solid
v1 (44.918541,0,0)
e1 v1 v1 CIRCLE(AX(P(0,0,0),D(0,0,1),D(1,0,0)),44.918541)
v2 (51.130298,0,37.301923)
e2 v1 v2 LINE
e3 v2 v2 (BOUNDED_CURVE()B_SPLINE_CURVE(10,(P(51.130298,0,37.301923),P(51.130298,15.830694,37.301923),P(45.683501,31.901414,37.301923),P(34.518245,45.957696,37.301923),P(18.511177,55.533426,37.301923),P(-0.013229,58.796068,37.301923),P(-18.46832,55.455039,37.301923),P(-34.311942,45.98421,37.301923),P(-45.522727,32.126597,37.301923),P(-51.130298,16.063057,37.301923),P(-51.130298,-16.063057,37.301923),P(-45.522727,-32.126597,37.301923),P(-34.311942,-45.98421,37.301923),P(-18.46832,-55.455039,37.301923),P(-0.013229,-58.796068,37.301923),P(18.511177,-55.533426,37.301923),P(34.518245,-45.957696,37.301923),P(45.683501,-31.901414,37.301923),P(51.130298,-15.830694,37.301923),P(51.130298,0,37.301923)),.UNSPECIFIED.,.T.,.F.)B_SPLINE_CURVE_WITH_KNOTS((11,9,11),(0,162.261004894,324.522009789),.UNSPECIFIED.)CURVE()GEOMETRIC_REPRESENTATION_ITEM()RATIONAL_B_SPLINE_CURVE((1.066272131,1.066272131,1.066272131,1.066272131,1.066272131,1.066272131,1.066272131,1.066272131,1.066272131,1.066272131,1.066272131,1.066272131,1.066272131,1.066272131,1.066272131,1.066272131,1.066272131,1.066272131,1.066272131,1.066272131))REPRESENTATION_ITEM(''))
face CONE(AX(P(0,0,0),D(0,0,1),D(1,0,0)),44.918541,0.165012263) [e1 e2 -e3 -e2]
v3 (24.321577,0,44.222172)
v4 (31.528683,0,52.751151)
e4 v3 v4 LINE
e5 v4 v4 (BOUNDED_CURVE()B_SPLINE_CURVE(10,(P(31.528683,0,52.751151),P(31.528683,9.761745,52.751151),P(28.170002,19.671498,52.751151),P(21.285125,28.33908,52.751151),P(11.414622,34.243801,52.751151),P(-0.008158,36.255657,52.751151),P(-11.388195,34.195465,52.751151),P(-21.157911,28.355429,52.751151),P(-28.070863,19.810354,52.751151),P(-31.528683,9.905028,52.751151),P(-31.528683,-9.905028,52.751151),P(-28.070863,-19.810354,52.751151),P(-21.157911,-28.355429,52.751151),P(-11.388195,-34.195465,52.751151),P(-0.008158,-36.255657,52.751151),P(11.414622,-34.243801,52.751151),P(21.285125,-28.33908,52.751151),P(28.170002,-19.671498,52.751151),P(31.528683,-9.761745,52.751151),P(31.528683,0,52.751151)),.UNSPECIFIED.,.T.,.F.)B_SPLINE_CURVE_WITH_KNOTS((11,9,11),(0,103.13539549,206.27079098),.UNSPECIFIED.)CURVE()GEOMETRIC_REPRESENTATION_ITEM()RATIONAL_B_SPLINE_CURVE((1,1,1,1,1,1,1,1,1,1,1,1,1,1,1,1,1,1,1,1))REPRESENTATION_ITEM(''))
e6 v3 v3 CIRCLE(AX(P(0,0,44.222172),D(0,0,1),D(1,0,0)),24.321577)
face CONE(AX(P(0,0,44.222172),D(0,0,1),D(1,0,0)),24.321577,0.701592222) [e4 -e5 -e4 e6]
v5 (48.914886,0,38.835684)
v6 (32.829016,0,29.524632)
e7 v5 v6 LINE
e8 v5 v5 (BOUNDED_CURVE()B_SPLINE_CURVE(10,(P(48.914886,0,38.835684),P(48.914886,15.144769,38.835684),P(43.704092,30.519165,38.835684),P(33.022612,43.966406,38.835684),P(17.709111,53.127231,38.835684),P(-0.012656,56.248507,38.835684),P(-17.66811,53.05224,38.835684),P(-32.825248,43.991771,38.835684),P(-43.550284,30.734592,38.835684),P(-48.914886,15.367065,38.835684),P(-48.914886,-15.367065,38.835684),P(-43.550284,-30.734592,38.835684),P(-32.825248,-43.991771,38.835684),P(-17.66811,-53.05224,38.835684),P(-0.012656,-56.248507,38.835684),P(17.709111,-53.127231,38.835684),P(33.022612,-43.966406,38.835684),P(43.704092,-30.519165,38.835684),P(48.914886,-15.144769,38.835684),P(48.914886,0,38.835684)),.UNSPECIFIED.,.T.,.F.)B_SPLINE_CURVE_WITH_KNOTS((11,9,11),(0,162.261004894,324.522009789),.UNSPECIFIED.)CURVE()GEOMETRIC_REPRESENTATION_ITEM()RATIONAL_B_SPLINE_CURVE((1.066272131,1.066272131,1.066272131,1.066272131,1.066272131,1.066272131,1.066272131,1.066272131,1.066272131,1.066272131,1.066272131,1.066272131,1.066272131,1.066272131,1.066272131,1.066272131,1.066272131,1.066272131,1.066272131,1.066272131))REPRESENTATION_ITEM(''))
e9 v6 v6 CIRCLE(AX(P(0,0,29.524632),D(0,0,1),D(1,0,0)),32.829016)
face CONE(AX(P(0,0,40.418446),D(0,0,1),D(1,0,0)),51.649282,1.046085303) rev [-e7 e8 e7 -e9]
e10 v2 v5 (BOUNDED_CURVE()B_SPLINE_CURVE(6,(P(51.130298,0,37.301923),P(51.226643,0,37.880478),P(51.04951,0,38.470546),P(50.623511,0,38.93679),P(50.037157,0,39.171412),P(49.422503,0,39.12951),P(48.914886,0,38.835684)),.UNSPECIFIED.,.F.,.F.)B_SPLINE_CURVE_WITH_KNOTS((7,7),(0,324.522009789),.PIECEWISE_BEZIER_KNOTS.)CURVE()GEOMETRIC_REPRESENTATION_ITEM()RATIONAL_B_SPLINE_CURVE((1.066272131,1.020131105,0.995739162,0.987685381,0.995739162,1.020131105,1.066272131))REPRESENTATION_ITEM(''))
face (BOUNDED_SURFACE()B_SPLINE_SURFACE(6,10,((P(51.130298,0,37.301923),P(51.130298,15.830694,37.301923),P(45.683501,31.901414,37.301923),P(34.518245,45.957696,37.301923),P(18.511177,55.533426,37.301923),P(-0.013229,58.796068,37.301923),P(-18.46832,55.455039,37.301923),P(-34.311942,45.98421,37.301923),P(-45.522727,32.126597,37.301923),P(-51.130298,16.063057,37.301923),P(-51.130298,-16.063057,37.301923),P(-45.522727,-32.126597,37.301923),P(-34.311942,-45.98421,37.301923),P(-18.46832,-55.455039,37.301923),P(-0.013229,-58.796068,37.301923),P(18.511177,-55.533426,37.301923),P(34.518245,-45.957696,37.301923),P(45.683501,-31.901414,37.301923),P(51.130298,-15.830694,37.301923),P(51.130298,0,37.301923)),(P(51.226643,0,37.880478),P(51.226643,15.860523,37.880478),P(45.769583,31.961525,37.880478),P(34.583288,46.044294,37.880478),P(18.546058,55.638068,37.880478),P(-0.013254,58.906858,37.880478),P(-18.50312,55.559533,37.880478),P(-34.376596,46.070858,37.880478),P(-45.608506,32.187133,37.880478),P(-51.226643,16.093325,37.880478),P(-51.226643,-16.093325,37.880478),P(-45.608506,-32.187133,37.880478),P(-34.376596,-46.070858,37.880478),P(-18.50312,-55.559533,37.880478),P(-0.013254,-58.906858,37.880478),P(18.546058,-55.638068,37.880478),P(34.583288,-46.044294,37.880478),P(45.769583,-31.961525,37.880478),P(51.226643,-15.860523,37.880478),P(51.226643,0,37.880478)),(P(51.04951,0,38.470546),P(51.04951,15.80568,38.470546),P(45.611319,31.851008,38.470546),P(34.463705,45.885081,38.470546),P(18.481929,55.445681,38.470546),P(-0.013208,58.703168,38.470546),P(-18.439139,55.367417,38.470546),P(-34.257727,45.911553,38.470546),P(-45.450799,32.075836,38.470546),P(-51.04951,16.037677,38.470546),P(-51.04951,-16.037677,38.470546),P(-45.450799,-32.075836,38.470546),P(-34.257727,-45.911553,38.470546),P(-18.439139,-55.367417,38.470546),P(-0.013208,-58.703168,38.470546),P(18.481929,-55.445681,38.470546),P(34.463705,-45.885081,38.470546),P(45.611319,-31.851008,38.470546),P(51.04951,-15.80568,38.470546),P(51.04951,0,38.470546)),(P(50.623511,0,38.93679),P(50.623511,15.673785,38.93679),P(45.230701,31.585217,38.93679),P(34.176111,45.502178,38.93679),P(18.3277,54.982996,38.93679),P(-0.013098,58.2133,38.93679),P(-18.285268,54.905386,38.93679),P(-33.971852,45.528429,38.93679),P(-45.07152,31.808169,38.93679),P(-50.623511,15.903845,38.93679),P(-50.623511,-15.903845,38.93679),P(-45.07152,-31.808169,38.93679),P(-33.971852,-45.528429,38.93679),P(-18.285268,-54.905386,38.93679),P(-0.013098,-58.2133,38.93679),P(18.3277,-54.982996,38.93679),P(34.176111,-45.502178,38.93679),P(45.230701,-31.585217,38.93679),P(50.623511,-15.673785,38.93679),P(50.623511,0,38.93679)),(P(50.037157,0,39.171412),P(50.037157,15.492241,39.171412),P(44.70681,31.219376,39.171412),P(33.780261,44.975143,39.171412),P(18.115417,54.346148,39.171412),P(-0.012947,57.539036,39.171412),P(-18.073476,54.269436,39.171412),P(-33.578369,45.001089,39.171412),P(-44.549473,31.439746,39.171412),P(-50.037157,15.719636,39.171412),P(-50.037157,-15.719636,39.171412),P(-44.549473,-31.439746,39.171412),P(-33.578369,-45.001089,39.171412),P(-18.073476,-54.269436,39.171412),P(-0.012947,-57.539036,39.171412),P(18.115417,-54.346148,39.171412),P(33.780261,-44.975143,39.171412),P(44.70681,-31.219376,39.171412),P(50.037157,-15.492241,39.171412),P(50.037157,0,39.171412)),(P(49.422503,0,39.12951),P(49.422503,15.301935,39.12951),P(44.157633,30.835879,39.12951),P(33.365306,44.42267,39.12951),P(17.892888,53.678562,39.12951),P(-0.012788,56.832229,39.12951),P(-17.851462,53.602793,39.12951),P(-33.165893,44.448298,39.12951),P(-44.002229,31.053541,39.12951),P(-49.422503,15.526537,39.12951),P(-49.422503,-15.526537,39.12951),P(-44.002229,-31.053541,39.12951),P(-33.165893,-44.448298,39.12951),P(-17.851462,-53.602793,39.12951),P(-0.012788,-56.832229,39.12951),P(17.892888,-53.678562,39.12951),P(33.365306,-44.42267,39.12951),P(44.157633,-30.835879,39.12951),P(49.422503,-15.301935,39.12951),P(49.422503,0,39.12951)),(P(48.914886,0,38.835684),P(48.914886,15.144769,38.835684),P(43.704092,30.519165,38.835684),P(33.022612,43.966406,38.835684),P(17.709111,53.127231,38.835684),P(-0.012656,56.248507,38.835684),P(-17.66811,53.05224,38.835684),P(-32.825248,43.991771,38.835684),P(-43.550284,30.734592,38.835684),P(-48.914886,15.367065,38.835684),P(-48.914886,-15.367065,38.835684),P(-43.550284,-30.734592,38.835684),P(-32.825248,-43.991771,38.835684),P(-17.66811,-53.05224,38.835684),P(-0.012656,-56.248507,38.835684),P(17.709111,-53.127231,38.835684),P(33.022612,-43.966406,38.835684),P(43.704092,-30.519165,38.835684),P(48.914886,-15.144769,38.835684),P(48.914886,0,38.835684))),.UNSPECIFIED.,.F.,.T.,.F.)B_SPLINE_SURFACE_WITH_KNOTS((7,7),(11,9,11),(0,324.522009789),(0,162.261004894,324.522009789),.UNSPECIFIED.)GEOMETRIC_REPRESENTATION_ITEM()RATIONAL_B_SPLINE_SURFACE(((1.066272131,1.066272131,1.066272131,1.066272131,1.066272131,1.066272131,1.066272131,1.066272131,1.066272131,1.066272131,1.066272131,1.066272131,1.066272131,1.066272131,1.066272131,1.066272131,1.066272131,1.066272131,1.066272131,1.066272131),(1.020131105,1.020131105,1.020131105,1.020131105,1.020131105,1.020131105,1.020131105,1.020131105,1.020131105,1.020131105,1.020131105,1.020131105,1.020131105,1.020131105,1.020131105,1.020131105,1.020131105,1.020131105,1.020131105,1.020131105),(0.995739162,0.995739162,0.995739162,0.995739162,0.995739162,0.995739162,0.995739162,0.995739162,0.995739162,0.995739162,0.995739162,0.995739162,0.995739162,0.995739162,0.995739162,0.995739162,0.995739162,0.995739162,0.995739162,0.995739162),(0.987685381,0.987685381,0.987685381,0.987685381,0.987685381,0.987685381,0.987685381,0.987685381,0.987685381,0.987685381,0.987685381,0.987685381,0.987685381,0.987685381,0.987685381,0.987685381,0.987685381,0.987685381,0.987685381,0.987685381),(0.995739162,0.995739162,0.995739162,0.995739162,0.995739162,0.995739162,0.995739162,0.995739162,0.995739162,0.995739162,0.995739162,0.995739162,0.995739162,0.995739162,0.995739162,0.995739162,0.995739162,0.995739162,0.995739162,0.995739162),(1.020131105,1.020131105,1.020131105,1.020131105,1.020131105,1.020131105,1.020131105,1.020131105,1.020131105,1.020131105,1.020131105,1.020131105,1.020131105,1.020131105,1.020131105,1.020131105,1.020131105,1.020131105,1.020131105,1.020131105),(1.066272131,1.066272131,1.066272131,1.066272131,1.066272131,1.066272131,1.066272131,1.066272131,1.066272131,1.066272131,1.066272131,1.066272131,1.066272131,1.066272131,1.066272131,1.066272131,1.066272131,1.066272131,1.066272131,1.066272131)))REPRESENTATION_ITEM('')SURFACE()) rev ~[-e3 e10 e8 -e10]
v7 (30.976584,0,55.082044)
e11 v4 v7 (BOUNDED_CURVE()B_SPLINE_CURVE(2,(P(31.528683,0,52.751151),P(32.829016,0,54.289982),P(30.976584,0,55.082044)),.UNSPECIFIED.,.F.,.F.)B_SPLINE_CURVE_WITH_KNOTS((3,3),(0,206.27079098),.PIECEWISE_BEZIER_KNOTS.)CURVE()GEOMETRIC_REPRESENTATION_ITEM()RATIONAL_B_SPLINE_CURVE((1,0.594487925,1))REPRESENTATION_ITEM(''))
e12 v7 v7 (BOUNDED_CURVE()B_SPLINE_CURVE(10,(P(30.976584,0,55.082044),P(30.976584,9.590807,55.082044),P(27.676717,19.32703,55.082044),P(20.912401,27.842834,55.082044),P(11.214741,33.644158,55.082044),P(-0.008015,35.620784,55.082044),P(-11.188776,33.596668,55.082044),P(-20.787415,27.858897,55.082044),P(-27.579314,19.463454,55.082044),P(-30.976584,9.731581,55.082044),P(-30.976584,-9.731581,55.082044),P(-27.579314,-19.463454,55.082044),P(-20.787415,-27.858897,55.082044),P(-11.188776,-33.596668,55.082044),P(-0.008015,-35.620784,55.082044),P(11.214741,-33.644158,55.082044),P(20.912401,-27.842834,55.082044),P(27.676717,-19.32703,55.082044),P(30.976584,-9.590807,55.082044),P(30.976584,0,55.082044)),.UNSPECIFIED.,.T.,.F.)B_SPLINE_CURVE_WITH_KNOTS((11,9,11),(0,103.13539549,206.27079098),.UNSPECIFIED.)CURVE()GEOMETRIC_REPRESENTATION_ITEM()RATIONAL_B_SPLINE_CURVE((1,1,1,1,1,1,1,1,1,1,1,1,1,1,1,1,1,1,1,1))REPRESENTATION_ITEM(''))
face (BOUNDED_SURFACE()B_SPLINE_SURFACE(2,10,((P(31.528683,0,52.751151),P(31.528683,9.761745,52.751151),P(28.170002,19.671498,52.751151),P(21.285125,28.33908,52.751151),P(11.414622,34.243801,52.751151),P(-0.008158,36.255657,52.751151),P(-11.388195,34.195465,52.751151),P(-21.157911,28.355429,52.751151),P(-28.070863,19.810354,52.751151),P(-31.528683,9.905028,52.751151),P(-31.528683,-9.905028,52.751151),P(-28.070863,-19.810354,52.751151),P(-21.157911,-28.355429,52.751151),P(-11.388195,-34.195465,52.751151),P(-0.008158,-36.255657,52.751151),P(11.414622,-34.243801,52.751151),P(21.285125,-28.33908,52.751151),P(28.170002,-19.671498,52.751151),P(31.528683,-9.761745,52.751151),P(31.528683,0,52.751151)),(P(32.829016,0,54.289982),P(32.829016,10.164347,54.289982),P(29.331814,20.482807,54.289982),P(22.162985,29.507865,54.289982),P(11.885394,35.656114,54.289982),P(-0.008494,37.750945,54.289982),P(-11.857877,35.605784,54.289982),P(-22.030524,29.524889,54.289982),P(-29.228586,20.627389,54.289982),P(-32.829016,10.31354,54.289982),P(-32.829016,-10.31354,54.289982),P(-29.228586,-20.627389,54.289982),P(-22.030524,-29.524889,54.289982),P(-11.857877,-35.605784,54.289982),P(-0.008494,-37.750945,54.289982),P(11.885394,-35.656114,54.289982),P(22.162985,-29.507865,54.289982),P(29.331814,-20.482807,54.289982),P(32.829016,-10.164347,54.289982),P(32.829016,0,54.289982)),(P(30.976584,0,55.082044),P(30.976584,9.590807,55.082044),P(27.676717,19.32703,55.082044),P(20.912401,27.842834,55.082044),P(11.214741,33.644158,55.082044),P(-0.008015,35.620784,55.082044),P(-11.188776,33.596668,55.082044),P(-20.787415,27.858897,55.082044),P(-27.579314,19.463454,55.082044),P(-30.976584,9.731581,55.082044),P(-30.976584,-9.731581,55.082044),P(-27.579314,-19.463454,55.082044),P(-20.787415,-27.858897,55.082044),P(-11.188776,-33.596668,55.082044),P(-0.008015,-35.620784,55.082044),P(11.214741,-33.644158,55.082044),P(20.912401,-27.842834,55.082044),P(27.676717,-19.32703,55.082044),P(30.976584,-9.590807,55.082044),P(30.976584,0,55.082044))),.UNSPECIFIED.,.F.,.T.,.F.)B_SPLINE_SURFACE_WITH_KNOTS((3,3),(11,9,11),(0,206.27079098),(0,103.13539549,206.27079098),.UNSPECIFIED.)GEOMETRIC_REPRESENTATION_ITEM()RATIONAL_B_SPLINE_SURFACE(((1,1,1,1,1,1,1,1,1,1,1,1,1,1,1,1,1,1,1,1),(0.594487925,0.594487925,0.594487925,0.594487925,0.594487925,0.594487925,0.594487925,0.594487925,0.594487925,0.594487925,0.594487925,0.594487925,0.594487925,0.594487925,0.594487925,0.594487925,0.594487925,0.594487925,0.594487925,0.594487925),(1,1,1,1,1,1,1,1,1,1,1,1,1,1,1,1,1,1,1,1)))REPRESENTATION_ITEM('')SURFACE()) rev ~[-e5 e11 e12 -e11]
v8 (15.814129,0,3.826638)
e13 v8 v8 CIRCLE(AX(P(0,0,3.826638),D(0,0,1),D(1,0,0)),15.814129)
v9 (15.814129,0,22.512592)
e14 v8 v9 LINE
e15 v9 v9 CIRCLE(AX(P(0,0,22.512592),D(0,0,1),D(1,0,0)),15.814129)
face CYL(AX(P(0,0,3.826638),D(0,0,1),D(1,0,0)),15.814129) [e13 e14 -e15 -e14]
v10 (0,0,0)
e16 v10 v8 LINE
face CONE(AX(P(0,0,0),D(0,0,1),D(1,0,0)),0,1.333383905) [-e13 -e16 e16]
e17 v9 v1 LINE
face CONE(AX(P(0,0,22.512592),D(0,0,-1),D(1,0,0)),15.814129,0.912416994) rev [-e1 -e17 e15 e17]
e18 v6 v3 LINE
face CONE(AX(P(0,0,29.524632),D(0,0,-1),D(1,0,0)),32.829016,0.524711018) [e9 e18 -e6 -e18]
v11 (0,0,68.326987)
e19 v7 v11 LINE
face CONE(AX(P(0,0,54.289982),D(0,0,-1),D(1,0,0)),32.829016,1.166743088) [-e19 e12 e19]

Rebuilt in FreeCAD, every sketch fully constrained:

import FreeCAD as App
import Part
import Sketcher
from FreeCAD import Vector
Q = App.Units.Quantity


def edges_at(feature, points):
    """Names of the edges that pass closest to the given points."""
    edges = feature.Shape.Edges
    near = lambda p: min(range(len(edges)), key=lambda i: edges[i].distToShape(Part.Vertex(*p))[0])
    return sorted({f"Edge{near(p) + 1}" for p in points})


def add_polygon(sketch, points):
    """Adds a closed chain of lines whose ends are joined by coincident constraints."""
    first, n = sketch.GeometryCount, len(points)
    for a, b in zip(points, points[1:] + points[:1]):
        sketch.addGeometry(Part.LineSegment(App.Vector(*a, 0), App.Vector(*b, 0)), False)
    for i in range(n):
        sketch.addConstraint(Sketcher.Constraint("Coincident", first + i, 2, first + (i + 1) % n, 1))

doc = App.newDocument("Part")
body = doc.addObject("PartDesign::Body", "Body")

# Sketch on XZ plane
sketch1 = doc.addObject("Sketcher::SketchObject", "Sketch")
body.addObject(sketch1)
sketch1.AttachmentSupport = (doc.XZ_Plane, [""])
sketch1.MapMode = "FlatFace"
add_polygon(sketch1, [(0, 68), (0, 0), (16, 4), (16, 23), (45, 0), (52, 40), (33, 30), (24, 44), (33, 54)])  # lines 0-8
sketch1.addConstraint([
    Sketcher.Constraint("Vertical", 0),
    Sketcher.Constraint("Vertical", 2),
    Sketcher.Constraint("Coincident", 0, 2, -1, 1),
    Sketcher.Constraint("PointOnObject", 3, 2, -1),
    Sketcher.Constraint("Perpendicular", 5, 6),
    Sketcher.Constraint("Vertical", 5, 2, 7, 2),
    Sketcher.Constraint("Distance", 1, Q("16.27052 mm")),
    Sketcher.Constraint("Distance", 5, Q("21.745749 mm")),
    Sketcher.Constraint("DistanceY", 0, 2, 0, 1, Q("68.326987 mm")),
    Sketcher.Constraint("DistanceY", 2, 1, 2, 2, Q("18.685954 mm")),
    Sketcher.Constraint("DistanceX", -1, 1, 1, 2, Q("15.814129 mm")),
    Sketcher.Constraint("DistanceX", -1, 1, 3, 2, Q("44.918541 mm")),
    Sketcher.Constraint("DistanceX", 3, 2, 4, 2, Q("6.730741 mm")),
    Sketcher.Constraint("DistanceY", 2, 2, 5, 2, Q("7.01204 mm")),
    Sketcher.Constraint("DistanceX", 6, 2, 5, 2, Q("8.507439 mm")),
    Sketcher.Constraint("DistanceY", 5, 2, 6, 2, Q("14.69754 mm")),
    Sketcher.Constraint("DistanceY", 6, 2, 7, 2, Q("10.06781 mm")),
])
revolution = doc.addObject("PartDesign::Revolution", "Revolution")
body.addObject(revolution)
revolution.Profile = sketch1
revolution.ReferenceAxis = (sketch1, ["V_Axis"])
revolution.Angle = 360
doc.recompute()

fillet = doc.addObject("PartDesign::Fillet", "Fillet")
body.addObject(fillet)
fillet.Base = (revolution, edges_at(revolution, [(-51.649, 0, 40.418), (-32.829, 0, 54.29)]))
fillet.Radius = 1.489474

doc.recompute()
